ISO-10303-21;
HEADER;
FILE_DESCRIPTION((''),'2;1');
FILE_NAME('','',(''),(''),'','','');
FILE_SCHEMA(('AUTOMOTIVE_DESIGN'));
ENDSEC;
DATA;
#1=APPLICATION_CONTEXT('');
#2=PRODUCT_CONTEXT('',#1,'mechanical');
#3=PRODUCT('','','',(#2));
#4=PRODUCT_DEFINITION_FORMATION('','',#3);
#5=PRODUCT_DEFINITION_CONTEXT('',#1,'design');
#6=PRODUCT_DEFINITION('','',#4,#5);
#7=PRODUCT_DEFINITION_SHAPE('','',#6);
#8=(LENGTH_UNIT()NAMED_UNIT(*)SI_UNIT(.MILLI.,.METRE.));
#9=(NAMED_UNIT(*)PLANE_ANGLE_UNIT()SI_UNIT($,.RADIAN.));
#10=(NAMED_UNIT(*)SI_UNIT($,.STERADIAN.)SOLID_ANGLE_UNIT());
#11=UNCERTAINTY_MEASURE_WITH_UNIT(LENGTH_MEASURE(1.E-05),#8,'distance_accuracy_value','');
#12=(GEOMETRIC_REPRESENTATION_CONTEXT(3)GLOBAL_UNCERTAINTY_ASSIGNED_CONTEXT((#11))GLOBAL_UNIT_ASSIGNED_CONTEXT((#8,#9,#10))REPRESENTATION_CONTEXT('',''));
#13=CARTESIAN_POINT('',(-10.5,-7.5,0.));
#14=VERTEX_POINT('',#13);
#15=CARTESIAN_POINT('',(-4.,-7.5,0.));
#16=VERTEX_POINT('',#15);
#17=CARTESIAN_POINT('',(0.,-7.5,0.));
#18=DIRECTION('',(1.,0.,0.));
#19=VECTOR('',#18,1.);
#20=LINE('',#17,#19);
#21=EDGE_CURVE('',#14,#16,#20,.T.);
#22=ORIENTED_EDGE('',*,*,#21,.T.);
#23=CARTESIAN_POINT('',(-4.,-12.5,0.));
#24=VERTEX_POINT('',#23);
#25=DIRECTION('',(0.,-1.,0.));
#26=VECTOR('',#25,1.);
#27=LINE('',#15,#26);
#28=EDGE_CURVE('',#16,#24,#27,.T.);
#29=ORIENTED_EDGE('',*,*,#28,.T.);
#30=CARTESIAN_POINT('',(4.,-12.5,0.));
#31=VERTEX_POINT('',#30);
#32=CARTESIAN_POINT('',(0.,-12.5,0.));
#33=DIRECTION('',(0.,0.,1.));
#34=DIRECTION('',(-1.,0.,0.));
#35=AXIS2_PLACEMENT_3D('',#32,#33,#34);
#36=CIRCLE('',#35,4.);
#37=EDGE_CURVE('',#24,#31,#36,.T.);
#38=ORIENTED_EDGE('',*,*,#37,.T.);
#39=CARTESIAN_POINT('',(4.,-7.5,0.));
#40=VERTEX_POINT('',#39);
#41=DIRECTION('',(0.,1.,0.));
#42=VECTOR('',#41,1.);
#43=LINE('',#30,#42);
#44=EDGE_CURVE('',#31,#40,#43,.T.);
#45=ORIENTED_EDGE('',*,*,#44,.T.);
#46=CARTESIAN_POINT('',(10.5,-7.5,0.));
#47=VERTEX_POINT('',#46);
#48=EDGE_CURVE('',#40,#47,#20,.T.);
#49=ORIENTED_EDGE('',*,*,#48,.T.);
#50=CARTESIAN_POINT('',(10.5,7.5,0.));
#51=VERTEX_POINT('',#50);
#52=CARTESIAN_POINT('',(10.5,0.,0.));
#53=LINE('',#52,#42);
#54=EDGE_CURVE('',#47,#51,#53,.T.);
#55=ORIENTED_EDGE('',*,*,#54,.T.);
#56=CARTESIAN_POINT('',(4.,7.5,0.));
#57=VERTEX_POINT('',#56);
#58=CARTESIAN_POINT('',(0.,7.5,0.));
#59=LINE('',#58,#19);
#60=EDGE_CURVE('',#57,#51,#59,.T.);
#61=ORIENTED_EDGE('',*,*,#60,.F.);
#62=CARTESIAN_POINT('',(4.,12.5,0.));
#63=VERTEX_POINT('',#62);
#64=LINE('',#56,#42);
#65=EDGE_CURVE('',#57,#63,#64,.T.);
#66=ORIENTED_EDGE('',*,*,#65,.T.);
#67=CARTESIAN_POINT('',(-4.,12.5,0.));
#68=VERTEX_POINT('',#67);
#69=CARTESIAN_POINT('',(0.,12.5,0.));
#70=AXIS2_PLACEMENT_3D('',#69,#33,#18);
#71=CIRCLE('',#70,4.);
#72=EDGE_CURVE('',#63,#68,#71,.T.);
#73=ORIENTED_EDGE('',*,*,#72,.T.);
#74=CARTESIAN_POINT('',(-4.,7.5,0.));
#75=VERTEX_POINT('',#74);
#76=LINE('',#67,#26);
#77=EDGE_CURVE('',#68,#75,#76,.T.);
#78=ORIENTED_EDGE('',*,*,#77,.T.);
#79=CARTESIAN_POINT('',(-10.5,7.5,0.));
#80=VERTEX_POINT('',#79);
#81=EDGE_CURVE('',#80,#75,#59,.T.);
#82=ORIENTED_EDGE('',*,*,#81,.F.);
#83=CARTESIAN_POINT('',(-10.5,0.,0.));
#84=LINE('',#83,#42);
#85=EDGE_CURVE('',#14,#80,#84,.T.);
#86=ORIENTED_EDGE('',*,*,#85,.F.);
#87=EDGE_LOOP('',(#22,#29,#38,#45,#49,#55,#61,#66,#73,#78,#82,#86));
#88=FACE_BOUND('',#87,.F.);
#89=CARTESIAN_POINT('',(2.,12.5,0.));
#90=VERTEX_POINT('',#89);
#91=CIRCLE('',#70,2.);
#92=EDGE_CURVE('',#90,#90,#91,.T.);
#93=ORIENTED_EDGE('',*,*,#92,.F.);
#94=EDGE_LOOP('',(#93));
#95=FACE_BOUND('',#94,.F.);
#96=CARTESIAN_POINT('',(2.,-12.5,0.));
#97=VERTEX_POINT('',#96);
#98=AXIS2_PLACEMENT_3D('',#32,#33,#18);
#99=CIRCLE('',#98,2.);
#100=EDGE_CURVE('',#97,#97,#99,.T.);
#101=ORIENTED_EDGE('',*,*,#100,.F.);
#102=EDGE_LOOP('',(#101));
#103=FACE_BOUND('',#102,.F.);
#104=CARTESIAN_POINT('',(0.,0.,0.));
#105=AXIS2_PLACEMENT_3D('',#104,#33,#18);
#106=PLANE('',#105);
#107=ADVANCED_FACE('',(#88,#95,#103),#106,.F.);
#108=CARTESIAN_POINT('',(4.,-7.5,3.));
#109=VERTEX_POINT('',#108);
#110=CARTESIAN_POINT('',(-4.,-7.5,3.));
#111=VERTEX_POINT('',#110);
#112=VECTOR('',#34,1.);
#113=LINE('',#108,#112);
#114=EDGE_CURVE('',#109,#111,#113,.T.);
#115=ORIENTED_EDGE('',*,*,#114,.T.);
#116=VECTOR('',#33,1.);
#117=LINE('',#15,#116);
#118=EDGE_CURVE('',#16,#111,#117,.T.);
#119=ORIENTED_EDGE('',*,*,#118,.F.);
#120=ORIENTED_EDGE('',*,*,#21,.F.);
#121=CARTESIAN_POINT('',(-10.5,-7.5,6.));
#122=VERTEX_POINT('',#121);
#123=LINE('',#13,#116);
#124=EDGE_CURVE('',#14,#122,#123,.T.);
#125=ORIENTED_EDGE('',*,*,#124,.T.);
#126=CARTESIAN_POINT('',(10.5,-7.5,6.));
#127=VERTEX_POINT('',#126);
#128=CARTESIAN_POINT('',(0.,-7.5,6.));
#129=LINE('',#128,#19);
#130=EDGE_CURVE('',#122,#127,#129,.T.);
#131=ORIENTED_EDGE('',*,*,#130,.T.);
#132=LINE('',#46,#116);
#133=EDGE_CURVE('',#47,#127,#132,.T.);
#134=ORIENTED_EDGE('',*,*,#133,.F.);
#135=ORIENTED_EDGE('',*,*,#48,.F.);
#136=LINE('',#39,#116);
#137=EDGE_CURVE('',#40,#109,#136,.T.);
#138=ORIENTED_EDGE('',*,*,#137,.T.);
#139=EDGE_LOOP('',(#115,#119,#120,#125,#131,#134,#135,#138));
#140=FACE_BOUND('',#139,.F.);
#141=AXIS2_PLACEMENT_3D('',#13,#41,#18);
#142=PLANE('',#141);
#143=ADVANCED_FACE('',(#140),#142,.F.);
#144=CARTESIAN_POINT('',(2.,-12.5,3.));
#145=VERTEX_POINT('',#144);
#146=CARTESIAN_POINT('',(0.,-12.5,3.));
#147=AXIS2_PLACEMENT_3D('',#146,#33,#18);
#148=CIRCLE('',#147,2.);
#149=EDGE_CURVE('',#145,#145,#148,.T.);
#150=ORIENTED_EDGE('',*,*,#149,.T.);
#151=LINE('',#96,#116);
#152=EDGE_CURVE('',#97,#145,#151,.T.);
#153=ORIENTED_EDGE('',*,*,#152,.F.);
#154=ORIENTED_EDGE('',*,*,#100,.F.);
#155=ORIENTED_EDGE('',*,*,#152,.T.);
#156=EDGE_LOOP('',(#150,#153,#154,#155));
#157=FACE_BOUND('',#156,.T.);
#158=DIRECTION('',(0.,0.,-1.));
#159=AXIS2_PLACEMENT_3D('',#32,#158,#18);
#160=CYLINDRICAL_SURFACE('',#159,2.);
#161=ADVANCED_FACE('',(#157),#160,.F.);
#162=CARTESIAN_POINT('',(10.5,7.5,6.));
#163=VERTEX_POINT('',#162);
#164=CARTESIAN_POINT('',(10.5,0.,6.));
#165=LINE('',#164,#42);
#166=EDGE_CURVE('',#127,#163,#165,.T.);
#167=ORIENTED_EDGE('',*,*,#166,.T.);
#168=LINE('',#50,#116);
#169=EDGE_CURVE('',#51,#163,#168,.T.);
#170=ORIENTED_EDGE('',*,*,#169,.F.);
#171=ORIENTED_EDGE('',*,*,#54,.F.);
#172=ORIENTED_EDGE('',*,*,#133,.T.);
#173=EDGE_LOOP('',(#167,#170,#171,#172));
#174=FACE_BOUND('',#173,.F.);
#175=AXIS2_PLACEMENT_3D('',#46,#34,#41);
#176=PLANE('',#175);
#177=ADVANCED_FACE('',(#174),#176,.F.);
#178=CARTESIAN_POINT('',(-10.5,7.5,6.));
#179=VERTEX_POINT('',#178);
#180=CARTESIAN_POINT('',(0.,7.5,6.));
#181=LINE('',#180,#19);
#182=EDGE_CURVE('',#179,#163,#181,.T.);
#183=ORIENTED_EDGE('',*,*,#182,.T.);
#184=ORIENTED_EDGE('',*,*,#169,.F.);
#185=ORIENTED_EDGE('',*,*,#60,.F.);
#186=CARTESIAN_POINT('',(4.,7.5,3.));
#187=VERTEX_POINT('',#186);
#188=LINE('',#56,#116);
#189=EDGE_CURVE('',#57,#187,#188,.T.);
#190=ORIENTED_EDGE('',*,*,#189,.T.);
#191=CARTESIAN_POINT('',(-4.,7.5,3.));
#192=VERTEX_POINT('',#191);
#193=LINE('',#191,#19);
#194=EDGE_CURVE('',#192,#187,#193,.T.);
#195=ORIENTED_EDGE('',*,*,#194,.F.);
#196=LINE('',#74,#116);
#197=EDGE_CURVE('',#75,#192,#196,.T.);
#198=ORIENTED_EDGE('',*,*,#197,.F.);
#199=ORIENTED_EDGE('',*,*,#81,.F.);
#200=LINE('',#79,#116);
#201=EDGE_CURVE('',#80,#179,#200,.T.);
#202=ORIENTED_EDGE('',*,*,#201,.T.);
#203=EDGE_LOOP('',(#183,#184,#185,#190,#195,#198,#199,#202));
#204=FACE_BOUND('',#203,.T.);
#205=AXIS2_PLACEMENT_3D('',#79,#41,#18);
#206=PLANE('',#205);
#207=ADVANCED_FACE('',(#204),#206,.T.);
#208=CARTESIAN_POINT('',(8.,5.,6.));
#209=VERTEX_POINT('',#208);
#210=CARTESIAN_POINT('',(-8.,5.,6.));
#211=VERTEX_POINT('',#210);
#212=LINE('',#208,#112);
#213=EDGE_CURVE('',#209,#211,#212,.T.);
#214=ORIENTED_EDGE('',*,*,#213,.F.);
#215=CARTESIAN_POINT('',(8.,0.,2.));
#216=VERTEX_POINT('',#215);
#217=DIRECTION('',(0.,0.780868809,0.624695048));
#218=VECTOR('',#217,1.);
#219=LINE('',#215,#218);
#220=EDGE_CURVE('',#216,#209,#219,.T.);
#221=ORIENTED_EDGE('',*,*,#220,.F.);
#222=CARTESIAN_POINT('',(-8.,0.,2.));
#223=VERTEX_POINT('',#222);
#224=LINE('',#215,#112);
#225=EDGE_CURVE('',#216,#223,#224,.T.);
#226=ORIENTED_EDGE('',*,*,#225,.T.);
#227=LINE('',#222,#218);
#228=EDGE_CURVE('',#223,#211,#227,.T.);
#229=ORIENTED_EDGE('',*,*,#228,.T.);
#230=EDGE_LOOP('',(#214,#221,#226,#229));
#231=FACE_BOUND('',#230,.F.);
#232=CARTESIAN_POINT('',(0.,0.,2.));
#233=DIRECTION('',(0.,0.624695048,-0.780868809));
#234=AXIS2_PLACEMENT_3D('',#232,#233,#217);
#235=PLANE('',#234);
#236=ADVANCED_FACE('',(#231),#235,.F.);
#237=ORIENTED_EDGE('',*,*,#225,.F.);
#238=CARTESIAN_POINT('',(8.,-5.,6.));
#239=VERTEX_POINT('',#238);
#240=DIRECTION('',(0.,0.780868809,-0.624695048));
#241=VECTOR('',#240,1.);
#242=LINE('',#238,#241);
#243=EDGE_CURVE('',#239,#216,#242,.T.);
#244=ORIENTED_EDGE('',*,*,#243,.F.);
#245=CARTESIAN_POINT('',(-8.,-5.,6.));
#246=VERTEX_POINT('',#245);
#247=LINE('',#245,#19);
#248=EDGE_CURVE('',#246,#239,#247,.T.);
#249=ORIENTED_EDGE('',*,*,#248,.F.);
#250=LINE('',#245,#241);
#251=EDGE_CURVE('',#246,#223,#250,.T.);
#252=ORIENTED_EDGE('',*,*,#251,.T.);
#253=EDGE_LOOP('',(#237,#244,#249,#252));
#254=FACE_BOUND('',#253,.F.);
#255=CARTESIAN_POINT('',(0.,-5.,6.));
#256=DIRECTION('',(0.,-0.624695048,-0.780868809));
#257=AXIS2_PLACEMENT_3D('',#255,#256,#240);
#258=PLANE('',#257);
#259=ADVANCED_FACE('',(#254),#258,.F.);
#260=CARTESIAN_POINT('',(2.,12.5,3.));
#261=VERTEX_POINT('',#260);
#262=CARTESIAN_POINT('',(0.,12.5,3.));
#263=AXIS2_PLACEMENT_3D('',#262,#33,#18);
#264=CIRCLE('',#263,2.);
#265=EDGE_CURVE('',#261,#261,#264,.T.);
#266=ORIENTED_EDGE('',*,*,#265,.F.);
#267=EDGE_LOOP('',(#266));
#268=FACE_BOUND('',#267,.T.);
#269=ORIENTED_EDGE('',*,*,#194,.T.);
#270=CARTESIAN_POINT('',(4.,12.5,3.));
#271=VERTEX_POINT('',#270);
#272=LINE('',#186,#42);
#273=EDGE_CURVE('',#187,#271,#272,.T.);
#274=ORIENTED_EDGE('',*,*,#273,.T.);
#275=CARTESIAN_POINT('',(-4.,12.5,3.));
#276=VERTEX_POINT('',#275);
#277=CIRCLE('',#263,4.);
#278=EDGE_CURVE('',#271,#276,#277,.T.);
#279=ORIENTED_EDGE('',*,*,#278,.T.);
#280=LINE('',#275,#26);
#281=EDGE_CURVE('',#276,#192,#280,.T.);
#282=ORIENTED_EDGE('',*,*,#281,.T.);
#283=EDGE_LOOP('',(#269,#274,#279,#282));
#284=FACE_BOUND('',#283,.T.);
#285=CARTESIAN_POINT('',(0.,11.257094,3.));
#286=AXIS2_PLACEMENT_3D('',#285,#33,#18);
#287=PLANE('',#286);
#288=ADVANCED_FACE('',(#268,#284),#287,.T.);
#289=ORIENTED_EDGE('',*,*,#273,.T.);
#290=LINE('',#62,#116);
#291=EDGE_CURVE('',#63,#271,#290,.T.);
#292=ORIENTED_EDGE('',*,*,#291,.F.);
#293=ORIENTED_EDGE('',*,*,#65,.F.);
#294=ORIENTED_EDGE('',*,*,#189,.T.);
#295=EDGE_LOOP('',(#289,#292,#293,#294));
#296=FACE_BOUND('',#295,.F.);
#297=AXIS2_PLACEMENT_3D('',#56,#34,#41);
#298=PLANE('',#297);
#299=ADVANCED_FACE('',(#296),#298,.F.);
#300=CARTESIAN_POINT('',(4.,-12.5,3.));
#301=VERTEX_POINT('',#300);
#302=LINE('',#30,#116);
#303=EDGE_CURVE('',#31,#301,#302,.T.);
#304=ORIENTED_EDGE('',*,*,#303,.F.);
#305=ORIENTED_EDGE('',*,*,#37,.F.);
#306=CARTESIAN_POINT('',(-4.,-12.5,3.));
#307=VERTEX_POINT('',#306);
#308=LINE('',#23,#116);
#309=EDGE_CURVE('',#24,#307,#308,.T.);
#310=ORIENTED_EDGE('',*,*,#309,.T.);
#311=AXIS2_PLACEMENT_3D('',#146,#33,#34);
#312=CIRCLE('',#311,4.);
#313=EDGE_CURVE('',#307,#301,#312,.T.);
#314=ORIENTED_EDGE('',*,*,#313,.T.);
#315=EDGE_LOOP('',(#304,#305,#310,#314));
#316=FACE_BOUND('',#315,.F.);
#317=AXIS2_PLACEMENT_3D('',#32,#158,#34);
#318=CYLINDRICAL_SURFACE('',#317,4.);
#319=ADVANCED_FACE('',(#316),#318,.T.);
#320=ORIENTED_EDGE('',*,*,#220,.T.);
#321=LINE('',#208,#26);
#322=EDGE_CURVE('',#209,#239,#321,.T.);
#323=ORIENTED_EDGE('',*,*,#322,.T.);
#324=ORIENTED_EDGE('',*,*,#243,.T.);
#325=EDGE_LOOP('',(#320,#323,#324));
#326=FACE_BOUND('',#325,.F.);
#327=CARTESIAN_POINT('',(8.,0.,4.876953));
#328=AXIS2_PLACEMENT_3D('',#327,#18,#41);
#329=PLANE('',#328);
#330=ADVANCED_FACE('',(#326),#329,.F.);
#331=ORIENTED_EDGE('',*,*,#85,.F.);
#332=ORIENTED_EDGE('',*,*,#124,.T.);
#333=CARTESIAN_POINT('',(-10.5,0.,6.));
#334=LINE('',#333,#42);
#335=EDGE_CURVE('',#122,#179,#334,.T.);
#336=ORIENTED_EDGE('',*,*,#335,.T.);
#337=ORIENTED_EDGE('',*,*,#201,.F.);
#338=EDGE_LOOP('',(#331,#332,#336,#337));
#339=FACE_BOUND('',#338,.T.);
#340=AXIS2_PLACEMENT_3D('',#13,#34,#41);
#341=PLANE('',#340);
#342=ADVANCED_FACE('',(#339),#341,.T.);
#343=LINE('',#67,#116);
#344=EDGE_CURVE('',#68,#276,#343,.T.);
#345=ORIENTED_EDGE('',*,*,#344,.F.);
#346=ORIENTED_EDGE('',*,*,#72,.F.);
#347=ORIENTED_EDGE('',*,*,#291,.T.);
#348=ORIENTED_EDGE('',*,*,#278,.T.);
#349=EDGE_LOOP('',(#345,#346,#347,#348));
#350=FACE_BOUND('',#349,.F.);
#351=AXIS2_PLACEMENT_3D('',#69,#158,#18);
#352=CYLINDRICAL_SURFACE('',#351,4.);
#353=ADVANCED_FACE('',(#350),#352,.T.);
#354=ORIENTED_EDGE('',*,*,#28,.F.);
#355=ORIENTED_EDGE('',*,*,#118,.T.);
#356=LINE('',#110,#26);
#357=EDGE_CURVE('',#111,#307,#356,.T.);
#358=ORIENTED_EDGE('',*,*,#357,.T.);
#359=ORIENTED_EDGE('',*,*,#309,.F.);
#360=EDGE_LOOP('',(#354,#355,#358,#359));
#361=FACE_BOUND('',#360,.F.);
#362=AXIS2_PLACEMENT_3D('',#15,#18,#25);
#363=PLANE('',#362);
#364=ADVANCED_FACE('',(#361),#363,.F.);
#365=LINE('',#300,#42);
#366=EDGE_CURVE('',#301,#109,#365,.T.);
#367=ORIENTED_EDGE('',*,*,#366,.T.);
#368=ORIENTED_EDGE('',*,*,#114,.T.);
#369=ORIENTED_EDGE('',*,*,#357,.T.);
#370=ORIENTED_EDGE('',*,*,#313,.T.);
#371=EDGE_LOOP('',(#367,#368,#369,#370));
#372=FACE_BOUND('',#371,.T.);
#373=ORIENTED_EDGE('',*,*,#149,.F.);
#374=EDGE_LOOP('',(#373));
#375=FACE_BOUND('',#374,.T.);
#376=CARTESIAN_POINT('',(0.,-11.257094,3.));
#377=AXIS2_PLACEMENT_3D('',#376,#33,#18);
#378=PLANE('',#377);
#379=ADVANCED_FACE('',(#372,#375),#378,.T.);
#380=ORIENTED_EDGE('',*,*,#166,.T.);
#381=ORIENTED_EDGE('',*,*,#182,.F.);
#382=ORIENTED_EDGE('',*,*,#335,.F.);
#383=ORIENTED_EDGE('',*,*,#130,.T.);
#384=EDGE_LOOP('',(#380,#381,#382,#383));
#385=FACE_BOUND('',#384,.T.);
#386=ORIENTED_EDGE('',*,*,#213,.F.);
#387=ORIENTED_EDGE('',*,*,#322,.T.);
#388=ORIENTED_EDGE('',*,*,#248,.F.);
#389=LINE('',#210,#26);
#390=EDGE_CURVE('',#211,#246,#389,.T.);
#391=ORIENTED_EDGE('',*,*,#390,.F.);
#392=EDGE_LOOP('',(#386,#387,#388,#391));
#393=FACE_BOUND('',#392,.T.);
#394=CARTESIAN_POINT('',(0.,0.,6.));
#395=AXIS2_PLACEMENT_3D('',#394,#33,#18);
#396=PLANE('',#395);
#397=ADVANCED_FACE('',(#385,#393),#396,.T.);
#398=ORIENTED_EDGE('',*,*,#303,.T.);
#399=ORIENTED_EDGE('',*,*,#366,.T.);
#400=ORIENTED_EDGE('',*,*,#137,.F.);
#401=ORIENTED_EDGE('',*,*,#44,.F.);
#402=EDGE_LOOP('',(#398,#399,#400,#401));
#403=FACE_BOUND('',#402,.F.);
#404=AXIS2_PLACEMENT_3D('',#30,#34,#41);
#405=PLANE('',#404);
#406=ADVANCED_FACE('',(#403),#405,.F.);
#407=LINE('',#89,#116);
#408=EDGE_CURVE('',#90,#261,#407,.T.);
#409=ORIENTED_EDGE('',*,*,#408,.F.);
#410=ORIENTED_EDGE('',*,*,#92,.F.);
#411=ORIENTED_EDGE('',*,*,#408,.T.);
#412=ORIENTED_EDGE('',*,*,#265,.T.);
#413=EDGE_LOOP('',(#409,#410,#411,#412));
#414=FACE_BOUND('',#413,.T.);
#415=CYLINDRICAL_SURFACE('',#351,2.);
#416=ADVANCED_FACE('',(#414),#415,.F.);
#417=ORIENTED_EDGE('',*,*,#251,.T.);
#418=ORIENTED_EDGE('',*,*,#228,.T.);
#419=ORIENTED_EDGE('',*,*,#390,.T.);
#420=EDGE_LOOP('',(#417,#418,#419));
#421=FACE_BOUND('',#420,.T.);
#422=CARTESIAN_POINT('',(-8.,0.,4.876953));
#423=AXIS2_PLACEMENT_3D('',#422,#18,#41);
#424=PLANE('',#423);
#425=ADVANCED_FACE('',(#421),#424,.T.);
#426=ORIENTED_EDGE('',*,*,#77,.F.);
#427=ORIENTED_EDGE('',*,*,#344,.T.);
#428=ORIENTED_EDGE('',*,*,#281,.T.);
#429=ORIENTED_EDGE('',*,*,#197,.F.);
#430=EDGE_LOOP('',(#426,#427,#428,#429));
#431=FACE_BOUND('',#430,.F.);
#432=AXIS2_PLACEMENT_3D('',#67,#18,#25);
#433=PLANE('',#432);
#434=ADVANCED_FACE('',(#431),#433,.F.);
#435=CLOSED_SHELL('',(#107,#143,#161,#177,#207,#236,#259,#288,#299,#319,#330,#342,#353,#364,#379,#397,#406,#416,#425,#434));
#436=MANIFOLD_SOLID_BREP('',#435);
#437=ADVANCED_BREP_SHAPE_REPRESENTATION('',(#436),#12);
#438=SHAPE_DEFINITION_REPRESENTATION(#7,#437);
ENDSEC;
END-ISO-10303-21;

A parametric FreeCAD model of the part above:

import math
import FreeCAD as App
import Part
import Sketcher
from FreeCAD import Vector

doc = App.newDocument("Part")
body = doc.addObject("PartDesign::Body", "Body")

# Sketch on XY plane
sketch1 = body.newObject("Sketcher::SketchObject", "Sketch")
sketch1.AttachmentSupport = (doc.getObject("XY_Plane"), [""])
sketch1.MapMode = "FlatFace"
sketch1.addGeometry([
    Part.LineSegment(Vector(-10.5, 7.5, 0), Vector(-10.5, -7.5, 0)),
    Part.LineSegment(Vector(-10.5, -7.5, 0), Vector(10.5, -7.5, 0)),
    Part.LineSegment(Vector(10.5, -7.5, 0), Vector(10.5, 7.5, 0)),
    Part.LineSegment(Vector(10.5, 7.5, 0), Vector(-10.5, 7.5, 0)),
], False)
sketch1.addConstraint([
    Sketcher.Constraint("Coincident", 0, 2, 1, 1),
    Sketcher.Constraint("Coincident", 1, 2, 2, 1),
    Sketcher.Constraint("Coincident", 2, 2, 3, 1),
    Sketcher.Constraint("Coincident", 3, 2, 0, 1),
    Sketcher.Constraint("Vertical", 0),
    Sketcher.Constraint("Horizontal", 1),
    Sketcher.Constraint("Vertical", 2),
    Sketcher.Constraint("Horizontal", 3),
    Sketcher.Constraint("Symmetric", 0, 2, 2, 2, -1, 1),
    Sketcher.Constraint("DistanceX", 1, 1, 1, 2, 21.0),
    Sketcher.Constraint("DistanceY", 0, 2, 0, 1, 15.0),
])
pad1 = body.newObject("PartDesign::Pad", "Pad")
pad1.Profile = sketch1
pad1.Length = 6

# Sketch on YZ plane
sketch2 = body.newObject("Sketcher::SketchObject", "Sketch001")
sketch2.AttachmentSupport = (doc.getObject("YZ_Plane"), [""])
sketch2.MapMode = "FlatFace"
sketch2.addGeometry([
    Part.LineSegment(Vector(5, 6, 0), Vector(-5, 6, 0)),
    Part.LineSegment(Vector(-5, 6, 0), Vector(0, 2, 0)),
    Part.LineSegment(Vector(0, 2, 0), Vector(5, 6, 0)),
], False)
sketch2.addConstraint([
    Sketcher.Constraint("Coincident", 0, 2, 1, 1),
    Sketcher.Constraint("Coincident", 1, 2, 2, 1),
    Sketcher.Constraint("Coincident", 2, 2, 0, 1),
    Sketcher.Constraint("Horizontal", 0),
    Sketcher.Constraint("PointOnObject", 1, 2, -2),
    Sketcher.Constraint("Equal", 1, 2),
    Sketcher.Constraint("DistanceX", 0, 2, 0, 1, 10.0),
    Sketcher.Constraint("DistanceY", -1, 1, 0, 2, 6.0),
    Sketcher.Constraint("DistanceY", -1, 1, 1, 2, 2.0),
])
pocket1 = body.newObject("PartDesign::Pocket", "Pocket")
pocket1.Profile = sketch2
pocket1.Length = 16
pocket1.Midplane = True

# Sketch on XY plane
sketch3 = body.newObject("Sketcher::SketchObject", "Sketch002")
sketch3.AttachmentSupport = (doc.getObject("XY_Plane"), [""])
sketch3.MapMode = "FlatFace"
sketch3.addGeometry([
    Part.LineSegment(Vector(-4, 12.5, 0), Vector(-4, 7.5, 0)),  # 0
    Part.LineSegment(Vector(-4, 7.5, 0), Vector(4, 7.5, 0)),  # 1
    Part.LineSegment(Vector(4, 7.5, 0), Vector(4, 12.5, 0)),  # 2
    Part.ArcOfCircle(Part.Circle(Vector(0, 12.5, 0), Vector(0, 0, 1), 4), math.radians(0), math.radians(180)),  # 3
    Part.Circle(Vector(0, 12.5, 0), Vector(0, 0, 1), 2),  # 4
    Part.LineSegment(Vector(4, -7.5, 0), Vector(-4, -7.5, 0)),  # 5
    Part.LineSegment(Vector(-4, -7.5, 0), Vector(-4, -12.5, 0)),  # 6
    Part.ArcOfCircle(Part.Circle(Vector(0, -12.5, 0), Vector(0, 0, 1), 4), math.radians(180), math.radians(360)),  # 7
    Part.LineSegment(Vector(4, -12.5, 0), Vector(4, -7.5, 0)),  # 8
    Part.Circle(Vector(0, -12.5, 0), Vector(0, 0, 1), 2),  # 9
], False)
sketch3.addConstraint([
    Sketcher.Constraint("Coincident", 0, 2, 1, 1),
    Sketcher.Constraint("Coincident", 1, 2, 2, 1),
    Sketcher.Constraint("Tangent", 2, 2, 3, 1),
    Sketcher.Constraint("Tangent", 3, 2, 0, 1),
    Sketcher.Constraint("Coincident", 5, 2, 6, 1),
    Sketcher.Constraint("Tangent", 6, 2, 7, 1),
    Sketcher.Constraint("Tangent", 7, 2, 8, 1),
    Sketcher.Constraint("Coincident", 8, 2, 5, 1),
    Sketcher.Constraint("Vertical", 0),
    Sketcher.Constraint("Horizontal", 1),
    Sketcher.Constraint("Vertical", 2),
    Sketcher.Constraint("Horizontal", 5),
    Sketcher.Constraint("Vertical", 6),
    Sketcher.Constraint("Vertical", 8),
    Sketcher.Constraint("Coincident", 4, 3, 3, 3),
    Sketcher.Constraint("Coincident", 9, 3, 7, 3),
    Sketcher.Constraint("Equal", 3, 7),
    Sketcher.Constraint("Equal", 4, 9),
    Sketcher.Constraint("Symmetric", 3, 3, 7, 3, -1, 1),
    Sketcher.Constraint("Symmetric", 0, 2, 5, 2, -1),
    Sketcher.Constraint("Diameter", 4, 4.0),
    Sketcher.Constraint("Radius", 3, 4.0),
    Sketcher.Constraint("DistanceY", 0, 2, 0, 1, 5.0),
    Sketcher.Constraint("DistanceY", 7, 3, 3, 3, 25.0),
])
pad2 = body.newObject("PartDesign::Pad", "Pad001")
pad2.Profile = sketch3
pad2.Length = 3

doc.recompute()
